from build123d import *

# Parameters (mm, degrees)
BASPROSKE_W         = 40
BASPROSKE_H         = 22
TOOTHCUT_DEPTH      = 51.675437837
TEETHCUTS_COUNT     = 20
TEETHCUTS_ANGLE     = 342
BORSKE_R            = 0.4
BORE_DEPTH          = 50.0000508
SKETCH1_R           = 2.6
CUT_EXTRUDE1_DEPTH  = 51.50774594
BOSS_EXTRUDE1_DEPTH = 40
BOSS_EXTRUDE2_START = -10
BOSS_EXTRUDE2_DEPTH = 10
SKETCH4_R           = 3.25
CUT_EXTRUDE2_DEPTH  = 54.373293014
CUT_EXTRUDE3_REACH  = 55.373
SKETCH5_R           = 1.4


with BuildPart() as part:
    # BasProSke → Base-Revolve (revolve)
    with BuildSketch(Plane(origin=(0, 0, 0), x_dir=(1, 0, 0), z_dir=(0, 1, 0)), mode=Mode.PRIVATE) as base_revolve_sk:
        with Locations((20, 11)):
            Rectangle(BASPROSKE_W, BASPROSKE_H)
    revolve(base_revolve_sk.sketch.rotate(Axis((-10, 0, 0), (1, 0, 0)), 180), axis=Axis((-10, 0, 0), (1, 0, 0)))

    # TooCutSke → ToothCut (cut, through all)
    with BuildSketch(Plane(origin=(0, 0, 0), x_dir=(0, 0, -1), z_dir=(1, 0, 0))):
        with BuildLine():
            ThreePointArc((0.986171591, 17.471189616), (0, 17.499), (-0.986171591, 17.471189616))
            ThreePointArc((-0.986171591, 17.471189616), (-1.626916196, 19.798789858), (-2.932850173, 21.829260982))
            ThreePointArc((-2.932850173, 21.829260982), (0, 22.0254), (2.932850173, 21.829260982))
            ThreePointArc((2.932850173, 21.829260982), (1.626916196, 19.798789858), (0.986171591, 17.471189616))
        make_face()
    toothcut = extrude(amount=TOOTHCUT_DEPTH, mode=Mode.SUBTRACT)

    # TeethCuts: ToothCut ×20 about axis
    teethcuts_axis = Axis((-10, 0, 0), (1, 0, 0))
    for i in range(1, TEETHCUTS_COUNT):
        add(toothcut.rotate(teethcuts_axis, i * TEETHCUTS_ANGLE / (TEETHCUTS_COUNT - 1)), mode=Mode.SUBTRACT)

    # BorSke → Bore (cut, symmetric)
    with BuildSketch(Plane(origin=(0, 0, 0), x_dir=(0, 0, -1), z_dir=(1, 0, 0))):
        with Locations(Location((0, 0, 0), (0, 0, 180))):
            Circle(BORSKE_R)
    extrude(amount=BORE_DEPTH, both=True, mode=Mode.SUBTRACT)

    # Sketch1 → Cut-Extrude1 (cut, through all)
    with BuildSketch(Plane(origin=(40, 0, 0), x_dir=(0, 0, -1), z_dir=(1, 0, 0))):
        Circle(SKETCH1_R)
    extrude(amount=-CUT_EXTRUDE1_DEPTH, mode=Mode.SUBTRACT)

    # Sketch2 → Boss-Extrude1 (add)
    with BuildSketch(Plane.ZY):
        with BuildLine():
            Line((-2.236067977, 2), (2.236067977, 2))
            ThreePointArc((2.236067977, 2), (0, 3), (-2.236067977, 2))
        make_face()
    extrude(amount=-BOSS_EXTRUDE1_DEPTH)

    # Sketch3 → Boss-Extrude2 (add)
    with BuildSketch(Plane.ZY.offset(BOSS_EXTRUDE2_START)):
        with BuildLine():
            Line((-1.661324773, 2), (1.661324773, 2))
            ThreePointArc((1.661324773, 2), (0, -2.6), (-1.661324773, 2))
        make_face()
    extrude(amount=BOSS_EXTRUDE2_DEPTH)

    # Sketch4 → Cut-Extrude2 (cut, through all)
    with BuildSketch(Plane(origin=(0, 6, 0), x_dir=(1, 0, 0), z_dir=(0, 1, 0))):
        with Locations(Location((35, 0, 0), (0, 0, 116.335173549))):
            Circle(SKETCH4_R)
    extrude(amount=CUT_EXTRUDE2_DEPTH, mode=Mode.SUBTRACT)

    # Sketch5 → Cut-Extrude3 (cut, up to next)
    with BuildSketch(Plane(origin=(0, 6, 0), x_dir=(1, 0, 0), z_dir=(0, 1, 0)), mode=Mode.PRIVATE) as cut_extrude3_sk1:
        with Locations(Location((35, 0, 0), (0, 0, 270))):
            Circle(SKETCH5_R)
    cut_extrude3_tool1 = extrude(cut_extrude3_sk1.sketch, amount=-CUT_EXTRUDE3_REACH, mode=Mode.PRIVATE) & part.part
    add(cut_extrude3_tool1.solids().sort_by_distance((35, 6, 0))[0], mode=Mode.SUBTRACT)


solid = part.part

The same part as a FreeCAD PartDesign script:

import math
import FreeCAD as App
import Part
import Sketcher
from FreeCAD import Vector


def add_polygon(sketch, points):
    """Adds a closed chain of lines whose ends are joined by coincident constraints."""
    first, n = sketch.GeometryCount, len(points)
    for a, b in zip(points, points[1:] + points[:1]):
        sketch.addGeometry(Part.LineSegment(App.Vector(*a, 0), App.Vector(*b, 0)), False)
    for i in range(n):
        sketch.addConstraint(Sketcher.Constraint("Coincident", first + i, 2, first + (i + 1) % n, 1))

doc = App.newDocument("Part")
params = doc.addObject("Spreadsheet::Sheet", "Params")
for row, (alias, value) in enumerate([
    ("sketch1_width", "40 mm"),
    ("sketch1_height", "22 mm"),
    ("revolution_angle", "360 deg"),
    ("sketch2_radius", "8 mm"),
    ("sketch3_diameter", "0.8 mm"),
    ("pocket2_length", "100.000102 mm"),
    ("sketch4_diameter", "5.2 mm"),
    ("sketch5_radius", "3 mm"),
    ("pad1_length", "40 mm"),
    ("sketch6_radius", "2.6 mm"),
    ("pad2_length", "10 mm"),
    ("sketch7_diameter", "6.5 mm"),
    ("sketch8_diameter", "2.8 mm"),
], start=1):
    params.set(f"A{row}", alias)
    params.set(f"B{row}", "=" + value)
    params.setAlias(f"B{row}", alias)

body = doc.addObject("PartDesign::Body", "Body")

sketch1 = body.newObject("Sketcher::SketchObject", "Sketch")
sketch1.AttachmentSupport = (doc.getObject("XZ_Plane"), [""])
sketch1.MapMode = "FlatFace"
add_polygon(sketch1, [(0, -22), (0, 0), (40, 0), (40, -22)])
sketch1.addConstraint([
    Sketcher.Constraint("Vertical", 0),
    Sketcher.Constraint("Horizontal", 1),
    Sketcher.Constraint("Vertical", 2),
    Sketcher.Constraint("Horizontal", 3),
    Sketcher.Constraint("Coincident", 0, 2, -1, 1),
    Sketcher.Constraint("DistanceX", 1, 1, 1, 2, 40.0),
    Sketcher.Constraint("DistanceY", 0, 1, 0, 2, 22.0),
])
sketch1.setExpression("Constraints[9]", "Params.sketch1_width")
sketch1.setExpression("Constraints[10]", "Params.sketch1_height")
revolution = body.newObject("PartDesign::Revolution", "Revolution")
revolution.Profile = sketch1
revolution.ReferenceAxis = (sketch1, ["H_Axis"])
revolution.setExpression("Angle", "Params.revolution_angle")

sketch2 = body.newObject("Sketcher::SketchObject", "Sketch001")
sketch2.AttachmentSupport = (doc.getObject("YZ_Plane"), [""])
sketch2.MapMode = "FlatFace"
sketch2.addGeometry([
    Part.ArcOfCircle(Part.Circle(Vector(0, 0, 0), Vector(0, 0, 1), 17.499), math.radians(-3.230666), math.radians(3.230666)),
    Part.ArcOfCircle(Part.Circle(Vector(16.536031, -8.931326, 0), Vector(0, 0, 1), 8), math.radians(48.573876), math.radians(83.287069)),
    Part.ArcOfCircle(Part.Circle(Vector(0, 0, 0), Vector(0, 0, 1), 22.0254), math.radians(-7.652098), math.radians(7.652098)),
    Part.ArcOfCircle(Part.Circle(Vector(16.536031, 8.931326, 0), Vector(0, 0, 1), 8), math.radians(-83.287069), math.radians(-48.573876)),
], False)
sketch2.addConstraint([
    Sketcher.Constraint("Coincident", 0, 1, 1, 2),
    Sketcher.Constraint("Coincident", 1, 1, 2, 1),
    Sketcher.Constraint("Coincident", 2, 2, 3, 2),
    Sketcher.Constraint("Coincident", 3, 1, 0, 2),
    Sketcher.Constraint("Coincident", 0, 3, -1, 1),
    Sketcher.Constraint("Coincident", 2, 3, -1, 1),
    Sketcher.Constraint("Equal", 1, 3),
    Sketcher.Constraint("Symmetric", 1, 3, 3, 3, -1),
    Sketcher.Constraint("Radius", 1, 8.0),
    Sketcher.Constraint("Radius", 0, 17.499),
    Sketcher.Constraint("Radius", 2, 22.0254),
    Sketcher.Constraint("DistanceY", 1, 1, 2, 2, 5.8657),
    Sketcher.Constraint("DistanceX", -1, 1, 1, 3, 16.536031),
])
sketch2.setExpression("Constraints[8]", "Params.sketch2_radius")
pocket1 = body.newObject("PartDesign::Pocket", "Pocket")
pocket1.Profile = sketch2
pocket1.Type = "ThroughAll"
pocket1.Reversed = True
doc.recompute()

polarpattern = body.newObject("PartDesign::PolarPattern", "PolarPattern")
polarpattern.Originals = [pocket1]
polarpattern.Axis = (doc.getObject("X_Axis"), [""])
polarpattern.Angle = 360
polarpattern.Occurrences = 20
body.Tip = polarpattern

sketch3 = body.newObject("Sketcher::SketchObject", "Sketch002")
sketch3.AttachmentSupport = (doc.getObject("YZ_Plane"), [""])
sketch3.MapMode = "FlatFace"
sketch3.addGeometry(Part.Circle(Vector(0, 0, 0), Vector(0, 0, 1), 0.4), False)
sketch3.addConstraint([
    Sketcher.Constraint("Coincident", 0, 3, -1, 1),
    Sketcher.Constraint("Diameter", 0, 0.8),
])
sketch3.setExpression("Constraints[1]", "Params.sketch3_diameter")
pocket2 = body.newObject("PartDesign::Pocket", "Pocket001")
pocket2.Profile = sketch3
pocket2.setExpression("Length", "Params.pocket2_length")
pocket2.Midplane = True

sketch4 = body.newObject("Sketcher::SketchObject", "Sketch003")
sketch4.AttachmentSupport = (doc.getObject("YZ_Plane"), [""])
sketch4.MapMode = "FlatFace"
sketch4.AttachmentOffset = App.Placement(Vector(0, 0, 40), App.Rotation())
sketch4.addGeometry(Part.Circle(Vector(0, 0, 0), Vector(0, 0, 1), 2.6), False)
sketch4.addConstraint([
    Sketcher.Constraint("Coincident", 0, 3, -1, 1),
    Sketcher.Constraint("Diameter", 0, 5.2),
])
sketch4.setExpression("Constraints[1]", "Params.sketch4_diameter")
pocket3 = body.newObject("PartDesign::Pocket", "Pocket002")
pocket3.Profile = sketch4
pocket3.Type = "ThroughAll"

sketch5 = body.newObject("Sketcher::SketchObject", "Sketch004")
sketch5.AttachmentSupport = (doc.getObject("YZ_Plane"), [""])
sketch5.MapMode = "FlatFace"
sketch5.addGeometry([
    Part.LineSegment(Vector(2, -2.236068, 0), Vector(2, 2.236068, 0)),
    Part.ArcOfCircle(Part.Circle(Vector(0, 0, 0), Vector(0, 0, 1), 3), math.radians(-48.189685), math.radians(48.189685)),
], False)
sketch5.addConstraint([
    Sketcher.Constraint("Coincident", 0, 1, 1, 1),
    Sketcher.Constraint("Coincident", 1, 2, 0, 2),
    Sketcher.Constraint("Vertical", 0),
    Sketcher.Constraint("Coincident", 1, 3, -1, 1),
    Sketcher.Constraint("Radius", 1, 3.0),
    Sketcher.Constraint("DistanceX", -1, 1, 0, 1, 2.0),
])
sketch5.setExpression("Constraints[4]", "Params.sketch5_radius")
pad1 = body.newObject("PartDesign::Pad", "Pad")
pad1.Profile = sketch5
pad1.setExpression("Length", "Params.pad1_length")

sketch6 = body.newObject("Sketcher::SketchObject", "Sketch005")
sketch6.AttachmentSupport = (doc.getObject("YZ_Plane"), [""])
sketch6.MapMode = "FlatFace"
sketch6.AttachmentOffset = App.Placement(Vector(0, 0, 10), App.Rotation())
sketch6.addGeometry([
    Part.LineSegment(Vector(2, 1.661325, 0), Vector(2, -1.661325, 0)),
    Part.ArcOfCircle(Part.Circle(Vector(0, 0, 0), Vector(0, 0, 1), 2.6), math.radians(39.715137), math.radians(320.284863)),
], False)
sketch6.addConstraint([
    Sketcher.Constraint("Coincident", 0, 1, 1, 1),
    Sketcher.Constraint("Coincident", 1, 2, 0, 2),
    Sketcher.Constraint("Vertical", 0),
    Sketcher.Constraint("Coincident", 1, 3, -1, 1),
    Sketcher.Constraint("Radius", 1, 2.6),
    Sketcher.Constraint("DistanceX", -1, 1, 0, 1, 2.0),
])
sketch6.setExpression("Constraints[4]", "Params.sketch6_radius")
pad2 = body.newObject("PartDesign::Pad", "Pad001")
pad2.Profile = sketch6
pad2.setExpression("Length", "Params.pad2_length")
pad2.Reversed = True

sketch7 = body.newObject("Sketcher::SketchObject", "Sketch006")
sketch7.AttachmentSupport = (doc.getObject("XZ_Plane"), [""])
sketch7.MapMode = "FlatFace"
sketch7.AttachmentOffset = App.Placement(Vector(0, 0, -6), App.Rotation())
sketch7.addGeometry(Part.Circle(Vector(35, 0, 0), Vector(0, 0, 1), 3.25), False)
sketch7.addConstraint([
    Sketcher.Constraint("PointOnObject", 0, 3, -1),
    Sketcher.Constraint("Diameter", 0, 6.5),
    Sketcher.Constraint("DistanceX", -1, 1, 0, 3, 35.0),
])
sketch7.setExpression("Constraints[1]", "Params.sketch7_diameter")
pocket4 = body.newObject("PartDesign::Pocket", "Pocket003")
pocket4.Profile = sketch7
pocket4.Type = "ThroughAll"

sketch8 = body.newObject("Sketcher::SketchObject", "Sketch007")
sketch8.AttachmentSupport = (doc.getObject("XZ_Plane"), [""])
sketch8.MapMode = "FlatFace"
sketch8.AttachmentOffset = App.Placement(Vector(0, 0, -6), App.Rotation())
sketch8.addGeometry(Part.Circle(Vector(35, 0, 0), Vector(0, 0, 1), 1.4), False)
sketch8.addConstraint([
    Sketcher.Constraint("PointOnObject", 0, 3, -1),
    Sketcher.Constraint("Diameter", 0, 2.8),
    Sketcher.Constraint("DistanceX", -1, 1, 0, 3, 35.0),
])
sketch8.setExpression("Constraints[1]", "Params.sketch8_diameter")
pocket5 = body.newObject("PartDesign::Pocket", "Pocket004")
pocket5.Profile = sketch8
pocket5.Type = "UpToFirst"
pocket5.Reversed = True

doc.recompute()
